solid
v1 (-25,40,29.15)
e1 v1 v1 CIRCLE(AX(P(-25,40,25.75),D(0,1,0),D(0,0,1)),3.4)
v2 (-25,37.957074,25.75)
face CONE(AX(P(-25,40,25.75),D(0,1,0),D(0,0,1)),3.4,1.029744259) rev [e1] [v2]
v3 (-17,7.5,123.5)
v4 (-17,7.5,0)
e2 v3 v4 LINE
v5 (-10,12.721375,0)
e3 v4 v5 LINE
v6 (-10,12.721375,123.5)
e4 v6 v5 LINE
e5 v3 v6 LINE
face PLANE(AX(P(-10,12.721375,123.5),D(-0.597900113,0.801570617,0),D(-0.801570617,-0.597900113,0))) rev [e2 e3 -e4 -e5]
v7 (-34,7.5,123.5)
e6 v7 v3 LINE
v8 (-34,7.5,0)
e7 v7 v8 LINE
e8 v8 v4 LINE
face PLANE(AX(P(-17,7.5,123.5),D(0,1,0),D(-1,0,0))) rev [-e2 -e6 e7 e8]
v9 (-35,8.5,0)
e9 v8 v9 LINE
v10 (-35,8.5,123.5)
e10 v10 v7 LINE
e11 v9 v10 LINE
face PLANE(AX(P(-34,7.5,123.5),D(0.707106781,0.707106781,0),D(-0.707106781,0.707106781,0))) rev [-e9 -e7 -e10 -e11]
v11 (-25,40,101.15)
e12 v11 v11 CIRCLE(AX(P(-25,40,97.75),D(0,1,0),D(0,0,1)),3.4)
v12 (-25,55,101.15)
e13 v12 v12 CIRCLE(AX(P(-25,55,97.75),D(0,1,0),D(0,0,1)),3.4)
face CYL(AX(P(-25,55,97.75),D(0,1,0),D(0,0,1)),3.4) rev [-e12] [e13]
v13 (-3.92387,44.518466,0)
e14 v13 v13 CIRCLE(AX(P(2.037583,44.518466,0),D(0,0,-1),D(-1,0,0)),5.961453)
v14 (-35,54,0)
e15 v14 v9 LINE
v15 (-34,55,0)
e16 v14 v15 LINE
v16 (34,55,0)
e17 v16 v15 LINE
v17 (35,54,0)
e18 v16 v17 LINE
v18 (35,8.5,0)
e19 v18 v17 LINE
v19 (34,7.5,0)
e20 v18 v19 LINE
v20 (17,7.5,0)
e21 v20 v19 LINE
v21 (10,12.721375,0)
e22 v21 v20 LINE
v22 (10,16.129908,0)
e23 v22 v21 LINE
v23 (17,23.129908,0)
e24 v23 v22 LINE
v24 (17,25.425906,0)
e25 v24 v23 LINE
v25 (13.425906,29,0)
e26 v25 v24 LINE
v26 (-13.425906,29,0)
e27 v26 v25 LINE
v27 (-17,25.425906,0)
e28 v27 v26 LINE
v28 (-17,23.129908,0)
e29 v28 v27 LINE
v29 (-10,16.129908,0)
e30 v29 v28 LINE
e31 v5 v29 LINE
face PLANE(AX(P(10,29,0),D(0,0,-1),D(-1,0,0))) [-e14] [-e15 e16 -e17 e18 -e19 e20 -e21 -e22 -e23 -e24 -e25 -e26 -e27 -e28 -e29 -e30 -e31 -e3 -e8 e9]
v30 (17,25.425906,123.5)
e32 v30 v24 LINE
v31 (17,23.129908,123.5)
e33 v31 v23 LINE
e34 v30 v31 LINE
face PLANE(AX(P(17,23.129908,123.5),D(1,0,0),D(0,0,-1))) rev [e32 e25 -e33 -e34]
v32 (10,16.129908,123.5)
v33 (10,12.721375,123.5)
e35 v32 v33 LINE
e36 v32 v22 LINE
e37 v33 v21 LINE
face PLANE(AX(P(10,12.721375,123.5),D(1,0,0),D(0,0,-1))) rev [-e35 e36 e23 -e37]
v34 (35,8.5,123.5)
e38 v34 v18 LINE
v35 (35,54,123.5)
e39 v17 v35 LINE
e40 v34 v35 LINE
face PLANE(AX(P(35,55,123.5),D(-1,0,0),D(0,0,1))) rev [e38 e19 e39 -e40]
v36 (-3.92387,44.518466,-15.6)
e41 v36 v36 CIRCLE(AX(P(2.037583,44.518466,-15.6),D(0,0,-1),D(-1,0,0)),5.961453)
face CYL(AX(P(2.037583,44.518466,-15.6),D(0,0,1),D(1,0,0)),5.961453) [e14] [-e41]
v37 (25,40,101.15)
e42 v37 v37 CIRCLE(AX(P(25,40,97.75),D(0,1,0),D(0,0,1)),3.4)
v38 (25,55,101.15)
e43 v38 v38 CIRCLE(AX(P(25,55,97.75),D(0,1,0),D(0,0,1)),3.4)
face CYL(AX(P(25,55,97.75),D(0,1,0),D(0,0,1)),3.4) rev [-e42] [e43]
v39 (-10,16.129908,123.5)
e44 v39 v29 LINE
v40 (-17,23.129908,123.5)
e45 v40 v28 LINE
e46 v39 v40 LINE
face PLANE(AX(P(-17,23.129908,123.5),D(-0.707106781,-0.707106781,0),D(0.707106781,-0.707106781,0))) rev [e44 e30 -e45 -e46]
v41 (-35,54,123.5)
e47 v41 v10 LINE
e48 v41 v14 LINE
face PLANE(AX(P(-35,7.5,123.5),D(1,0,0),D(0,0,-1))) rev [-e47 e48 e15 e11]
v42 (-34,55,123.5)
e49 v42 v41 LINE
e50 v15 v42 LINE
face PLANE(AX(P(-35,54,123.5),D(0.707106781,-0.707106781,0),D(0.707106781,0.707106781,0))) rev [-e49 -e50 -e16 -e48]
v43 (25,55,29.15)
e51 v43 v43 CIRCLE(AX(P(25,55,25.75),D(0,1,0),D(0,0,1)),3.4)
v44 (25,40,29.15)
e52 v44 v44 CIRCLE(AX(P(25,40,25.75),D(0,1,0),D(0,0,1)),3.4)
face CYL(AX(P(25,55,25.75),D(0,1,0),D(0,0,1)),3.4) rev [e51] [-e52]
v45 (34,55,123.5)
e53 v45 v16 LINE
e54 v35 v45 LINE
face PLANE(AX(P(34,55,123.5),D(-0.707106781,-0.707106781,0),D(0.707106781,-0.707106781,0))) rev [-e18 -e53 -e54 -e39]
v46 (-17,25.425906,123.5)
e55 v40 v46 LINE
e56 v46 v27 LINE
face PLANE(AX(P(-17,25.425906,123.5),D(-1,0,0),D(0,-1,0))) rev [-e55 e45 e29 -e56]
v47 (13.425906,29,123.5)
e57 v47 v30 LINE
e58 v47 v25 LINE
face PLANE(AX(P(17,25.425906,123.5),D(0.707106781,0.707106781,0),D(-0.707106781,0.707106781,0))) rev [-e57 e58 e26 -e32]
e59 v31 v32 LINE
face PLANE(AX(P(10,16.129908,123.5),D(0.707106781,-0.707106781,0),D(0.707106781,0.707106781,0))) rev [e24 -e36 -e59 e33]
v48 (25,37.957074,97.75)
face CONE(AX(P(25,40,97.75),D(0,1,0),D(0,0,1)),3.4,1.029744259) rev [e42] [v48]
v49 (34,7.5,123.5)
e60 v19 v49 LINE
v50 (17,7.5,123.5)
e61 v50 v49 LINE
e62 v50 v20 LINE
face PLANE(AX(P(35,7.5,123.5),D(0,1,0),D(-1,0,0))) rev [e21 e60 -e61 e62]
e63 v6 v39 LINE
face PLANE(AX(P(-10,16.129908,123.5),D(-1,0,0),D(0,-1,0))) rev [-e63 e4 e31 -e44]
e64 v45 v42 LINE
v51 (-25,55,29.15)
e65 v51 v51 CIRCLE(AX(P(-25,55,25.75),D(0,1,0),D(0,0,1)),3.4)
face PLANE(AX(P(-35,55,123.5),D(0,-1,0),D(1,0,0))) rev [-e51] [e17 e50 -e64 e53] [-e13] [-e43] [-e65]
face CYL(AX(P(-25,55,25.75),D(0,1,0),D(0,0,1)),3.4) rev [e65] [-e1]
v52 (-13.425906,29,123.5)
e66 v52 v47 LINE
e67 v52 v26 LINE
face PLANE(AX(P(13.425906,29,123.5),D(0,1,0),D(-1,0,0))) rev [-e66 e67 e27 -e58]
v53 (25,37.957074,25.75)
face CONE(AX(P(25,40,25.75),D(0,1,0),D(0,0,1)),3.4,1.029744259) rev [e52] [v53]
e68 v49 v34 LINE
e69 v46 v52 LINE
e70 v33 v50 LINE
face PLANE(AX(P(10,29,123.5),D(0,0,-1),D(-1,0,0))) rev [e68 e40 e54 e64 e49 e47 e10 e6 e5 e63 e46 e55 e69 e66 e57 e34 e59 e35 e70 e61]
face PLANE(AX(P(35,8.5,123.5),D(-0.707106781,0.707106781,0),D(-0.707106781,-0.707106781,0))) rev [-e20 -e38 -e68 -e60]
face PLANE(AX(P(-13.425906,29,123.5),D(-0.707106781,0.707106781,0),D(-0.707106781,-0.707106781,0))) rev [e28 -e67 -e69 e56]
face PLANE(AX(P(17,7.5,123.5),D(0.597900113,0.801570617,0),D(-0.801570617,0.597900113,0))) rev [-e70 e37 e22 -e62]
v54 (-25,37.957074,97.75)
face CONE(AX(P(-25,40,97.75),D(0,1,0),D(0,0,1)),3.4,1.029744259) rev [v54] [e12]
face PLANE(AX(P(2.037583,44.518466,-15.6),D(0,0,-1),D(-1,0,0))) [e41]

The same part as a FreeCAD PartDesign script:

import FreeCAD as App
import Part
import Sketcher
from FreeCAD import Vector


def edges_at(feature, points):
    """Names of the edges that pass closest to the given points."""
    edges = feature.Shape.Edges
    near = lambda p: min(range(len(edges)), key=lambda i: edges[i].distToShape(Part.Vertex(*p))[0])
    return sorted({f"Edge{near(p) + 1}" for p in points})

doc = App.newDocument("Part")
body = doc.addObject("PartDesign::Body", "Body")

# Sketch on XY plane
sketch1 = body.newObject("Sketcher::SketchObject", "Sketch")
sketch1.AttachmentSupport = (doc.getObject("XY_Plane"), [""])
sketch1.MapMode = "FlatFace"
sketch1.addGeometry([
    Part.LineSegment(Vector(-35, 7.5, 0), Vector(-17, 7.5, 0)),  # 0
    Part.LineSegment(Vector(-17, 7.5, 0), Vector(-10, 12.7, 0)),  # 1
    Part.LineSegment(Vector(-10, 12.7, 0), Vector(-10, 16.1, 0)),  # 2
    Part.LineSegment(Vector(-10, 16.1, 0), Vector(-17, 23.1, 0)),  # 3
    Part.LineSegment(Vector(-17, 23.1, 0), Vector(-17, 25.4, 0)),  # 4
    Part.LineSegment(Vector(-17, 25.4, 0), Vector(-13.4, 29, 0)),  # 5
    Part.LineSegment(Vector(-13.4, 29, 0), Vector(13.4, 29, 0)),  # 6
    Part.LineSegment(Vector(13.4, 29, 0), Vector(17, 25.4, 0)),  # 7
    Part.LineSegment(Vector(17, 25.4, 0), Vector(17, 23.1, 0)),  # 8
    Part.LineSegment(Vector(17, 23.1, 0), Vector(10, 16.1, 0)),  # 9
    Part.LineSegment(Vector(10, 16.1, 0), Vector(10, 12.7, 0)),  # 10
    Part.LineSegment(Vector(10, 12.7, 0), Vector(17, 7.5, 0)),  # 11
    Part.LineSegment(Vector(17, 7.5, 0), Vector(35, 7.5, 0)),  # 12
    Part.LineSegment(Vector(35, 7.5, 0), Vector(35, 55, 0)),  # 13
    Part.LineSegment(Vector(35, 55, 0), Vector(-35, 55, 0)),  # 14
    Part.LineSegment(Vector(-35, 55, 0), Vector(-35, 7.5, 0)),  # 15
], False)
sketch1.addConstraint([
    Sketcher.Constraint("Coincident", 0, 2, 1, 1),
    Sketcher.Constraint("Coincident", 1, 2, 2, 1),
    Sketcher.Constraint("Coincident", 2, 2, 3, 1),
    Sketcher.Constraint("Coincident", 3, 2, 4, 1),
    Sketcher.Constraint("Coincident", 4, 2, 5, 1),
    Sketcher.Constraint("Coincident", 5, 2, 6, 1),
    Sketcher.Constraint("Coincident", 6, 2, 7, 1),
    Sketcher.Constraint("Coincident", 7, 2, 8, 1),
    Sketcher.Constraint("Coincident", 8, 2, 9, 1),
    Sketcher.Constraint("Coincident", 9, 2, 10, 1),
    Sketcher.Constraint("Coincident", 10, 2, 11, 1),
    Sketcher.Constraint("Coincident", 11, 2, 12, 1),
    Sketcher.Constraint("Coincident", 12, 2, 13, 1),
    Sketcher.Constraint("Coincident", 13, 2, 14, 1),
    Sketcher.Constraint("Coincident", 14, 2, 15, 1),
    Sketcher.Constraint("Coincident", 15, 2, 0, 1),
    Sketcher.Constraint("Horizontal", 0),
    Sketcher.Constraint("Vertical", 2),
    Sketcher.Constraint("Vertical", 4),
    Sketcher.Constraint("Horizontal", 6),
    Sketcher.Constraint("Vertical", 8),
    Sketcher.Constraint("Vertical", 10),
    Sketcher.Constraint("Horizontal", 12),
    Sketcher.Constraint("Vertical", 13),
    Sketcher.Constraint("Horizontal", 14),
    Sketcher.Constraint("Vertical", 15),
    Sketcher.Constraint("Symmetric", 4, 2, 7, 2, -2),
    Sketcher.Constraint("Symmetric", 2, 2, 9, 2, -2),
    Sketcher.Constraint("Symmetric", 0, 2, 11, 2, -2),
    Sketcher.Constraint("Perpendicular", 3, 5),
    Sketcher.Constraint("Perpendicular", 5, 7),
    Sketcher.Constraint("Perpendicular", 7, 9),
    Sketcher.Constraint("Horizontal", 3, 2, 8, 2),
    Sketcher.Constraint("Horizontal", 1, 2, 10, 2),
    Sketcher.Constraint("Vertical", 0, 2, 3, 2),
    Sketcher.Constraint("Equal", 0, 12),
    Sketcher.Constraint("DistanceX", 0, 1, 0, 2, 18.0),
    Sketcher.Constraint("DistanceX", 14, 2, 14, 1, 70.0),
    Sketcher.Constraint("DistanceY", 13, 1, 13, 2, 47.5),
    Sketcher.Constraint("DistanceX", 1, 2, -1, 1, 10.0),
    Sketcher.Constraint("DistanceY", -1, 1, 5, 2, 29.0),
    Sketcher.Constraint("DistanceY", -1, 1, 13, 2, 55.0),
    Sketcher.Constraint("DistanceY", 4, 1, 4, 2, 2.295999),
    Sketcher.Constraint("Distance", 5, 5.054532),
    Sketcher.Constraint("DistanceY", 2, 1, 2, 2, 3.408533),
])
pad1 = body.newObject("PartDesign::Pad", "Pad")
pad1.Profile = sketch1
pad1.Length = 123.5
doc.recompute()

chamfer = body.newObject("PartDesign::Chamfer", "Chamfer")
chamfer.Base = (pad1, edges_at(pad1, [
    (-35, 7.5, 61.75),
    (-35, 55, 61.75),
    (35, 55, 61.75),
    (35, 7.5, 61.75),
]))
chamfer.Size = 1

# Sketch on XZ plane
sketch2 = body.newObject("Sketcher::SketchObject", "Sketch001")
sketch2.AttachmentSupport = (doc.getObject("XZ_Plane"), [""])
sketch2.MapMode = "FlatFace"
sketch2.AttachmentOffset = App.Placement(Vector(0, 0, -55), App.Rotation())
sketch2.addGeometry([
    Part.Circle(Vector(-25, 97.8, 0), Vector(0, 0, 1), 3.4),
    Part.Circle(Vector(-25, 25.8, 0), Vector(0, 0, 1), 3.4),
    Part.Circle(Vector(25, 25.8, 0), Vector(0, 0, 1), 3.4),
    Part.Circle(Vector(25, 97.8, 0), Vector(0, 0, 1), 3.4),
], False)
sketch2.addConstraint([
    Sketcher.Constraint("Equal", 0, 1),
    Sketcher.Constraint("Equal", 1, 2),
    Sketcher.Constraint("Equal", 2, 3),
    Sketcher.Constraint("Symmetric", 1, 3, 2, 3, -2),
    Sketcher.Constraint("Symmetric", 0, 3, 3, 3, -2),
    Sketcher.Constraint("Vertical", 0, 3, 1, 3),
    Sketcher.Constraint("Diameter", 0, 6.8),
    Sketcher.Constraint("DistanceX", 0, 3, -1, 1, 25.0),
    Sketcher.Constraint("DistanceY", 1, 3, 0, 3, 72.0),
    Sketcher.Constraint("DistanceY", -1, 1, 0, 3, 97.75),
])
doc.recompute()
hole = body.newObject("PartDesign::Hole", "Hole")
hole.Profile = sketch2
hole.ThreadType = "None"
hole.Diameter = 6.8
hole.DepthType = "Dimension"
hole.Depth = 15
hole.DrillPoint = "Angled"
hole.DrillPointAngle = 118
hole.Reversed = True

# Sketch on XY plane
sketch3 = body.newObject("Sketcher::SketchObject", "Sketch002")
sketch3.AttachmentSupport = (doc.getObject("XY_Plane"), [""])
sketch3.MapMode = "FlatFace"
sketch3.addGeometry(Part.Circle(Vector(2, 45, 0), Vector(0, 0, 1), 6), False)
sketch3.addConstraint([
    Sketcher.Constraint("Diameter", 0, 11.922906),
    Sketcher.Constraint("DistanceX", -1, 1, 0, 3, 2.037583),
    Sketcher.Constraint("DistanceY", -1, 1, 0, 3, 44.518466),
])
pad2 = body.newObject("PartDesign::Pad", "Pad001")
pad2.Profile = sketch3
pad2.Length = 15.6
pad2.Reversed = True

doc.recompute()
